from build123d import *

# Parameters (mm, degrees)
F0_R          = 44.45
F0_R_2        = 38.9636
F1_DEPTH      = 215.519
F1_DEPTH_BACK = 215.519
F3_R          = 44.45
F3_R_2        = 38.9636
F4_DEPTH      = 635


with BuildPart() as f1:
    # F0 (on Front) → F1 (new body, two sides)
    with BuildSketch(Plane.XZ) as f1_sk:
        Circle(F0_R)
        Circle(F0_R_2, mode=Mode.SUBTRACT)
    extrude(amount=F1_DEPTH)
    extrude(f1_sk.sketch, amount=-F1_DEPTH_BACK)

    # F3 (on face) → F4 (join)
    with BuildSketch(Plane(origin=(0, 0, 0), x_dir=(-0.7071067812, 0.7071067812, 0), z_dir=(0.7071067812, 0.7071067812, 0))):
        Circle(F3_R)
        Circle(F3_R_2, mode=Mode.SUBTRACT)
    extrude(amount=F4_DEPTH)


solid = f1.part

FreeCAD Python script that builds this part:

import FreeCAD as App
import Part
import Sketcher
from FreeCAD import Vector
Q = App.Units.Quantity

doc = App.newDocument("Part")
body = doc.addObject("PartDesign::Body", "Body")

sketch1 = doc.addObject("Sketcher::SketchObject", "Sketch")
body.addObject(sketch1)
sketch1.AttachmentSupport = (doc.XZ_Plane, [""])
sketch1.MapMode = "FlatFace"
sketch1.addGeometry([
    Part.Circle(Vector(0, 0, 0), Vector(0, 0, 1), 44),
    Part.Circle(Vector(0, 0, 0), Vector(0, 0, 1), 39),
], False)
sketch1.addConstraint([
    Sketcher.Constraint("Coincident", 0, 3, -1, 1),
    Sketcher.Constraint("Coincident", 1, 3, -1, 1),
    Sketcher.Constraint("Diameter", 0, Q("3.5 in")),
    Sketcher.Constraint("Diameter", 1, Q("3.068 in")),
])
pad1 = doc.addObject("PartDesign::Pad", "Pad")
body.addObject(pad1)
pad1.Profile = sketch1
pad1.Type = "TwoLengths"
pad1.Length = Q("8.485 in")
pad1.Length2 = Q("8.485 in")

sketch2 = doc.addObject("Sketcher::SketchObject", "Sketch001")
body.addObject(sketch2)
sketch2.Placement = App.Placement(Vector(0, 0, 0), App.Rotation(Vector(-0.707106781, 0.707106781, 0), Vector(0, 0, 0.999999999), Vector(0.707106781, 0.707106781, 0), "ZXY"))
sketch2.addGeometry([
    Part.Circle(Vector(0, 0, 0), Vector(0, 0, 1), 44),
    Part.Circle(Vector(0, 0, 0), Vector(0, 0, 1), 39),
], False)
sketch2.addConstraint([
    Sketcher.Constraint("Coincident", 0, 3, -1, 1),
    Sketcher.Constraint("Coincident", 1, 3, -1, 1),
    Sketcher.Constraint("Diameter", 0, Q("3.5 in")),
    Sketcher.Constraint("Diameter", 1, Q("3.068 in")),
])
pad2 = doc.addObject("PartDesign::Pad", "Pad001")
body.addObject(pad2)
pad2.Profile = sketch2
pad2.Length = Q("25 in")

doc.recompute()
